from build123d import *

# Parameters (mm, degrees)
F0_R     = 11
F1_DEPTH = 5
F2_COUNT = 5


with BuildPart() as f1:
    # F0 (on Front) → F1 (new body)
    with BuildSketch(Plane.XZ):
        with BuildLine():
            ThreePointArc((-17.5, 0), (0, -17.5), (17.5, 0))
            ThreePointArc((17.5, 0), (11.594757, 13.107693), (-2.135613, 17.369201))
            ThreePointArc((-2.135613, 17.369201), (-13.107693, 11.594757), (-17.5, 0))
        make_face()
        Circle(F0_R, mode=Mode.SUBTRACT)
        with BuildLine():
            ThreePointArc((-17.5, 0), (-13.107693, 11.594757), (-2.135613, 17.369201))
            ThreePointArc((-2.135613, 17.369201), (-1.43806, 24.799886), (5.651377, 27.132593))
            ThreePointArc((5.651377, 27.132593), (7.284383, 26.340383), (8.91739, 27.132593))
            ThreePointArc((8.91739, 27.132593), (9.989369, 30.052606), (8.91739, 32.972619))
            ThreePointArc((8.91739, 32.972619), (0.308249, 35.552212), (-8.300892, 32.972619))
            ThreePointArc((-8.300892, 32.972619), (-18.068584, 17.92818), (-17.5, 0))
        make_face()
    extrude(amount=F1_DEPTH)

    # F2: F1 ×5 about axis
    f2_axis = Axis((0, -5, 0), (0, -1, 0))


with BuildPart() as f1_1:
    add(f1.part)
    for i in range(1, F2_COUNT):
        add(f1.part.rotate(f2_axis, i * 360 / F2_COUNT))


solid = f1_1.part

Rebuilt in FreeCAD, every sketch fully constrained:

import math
import FreeCAD as App
import Part
import Sketcher

doc = App.newDocument("Part")
params = doc.addObject("Spreadsheet::Sheet", "Params")
for row, (alias, value) in enumerate([
    ("sketch1_diameter", "22 mm"),
    ("sketch1_radius", "17.5 mm"),
    ("pad1_length", "5 mm"),
], start=1):
    params.set(f"A{row}", alias)
    params.set(f"B{row}", "=" + value)
    params.setAlias(f"B{row}", alias)

body = doc.addObject("PartDesign::Body", "Body")

sketch1 = doc.addObject("Sketcher::SketchObject", "Sketch")
body.addObject(sketch1)
sketch1.AttachmentSupport = (doc.XZ_Plane, [""])
sketch1.MapMode = "FlatFace"
sketch1.addGeometry([
    Part.ArcOfCircle(Part.Circle(App.Vector(0, 0, 0), App.Vector(0, 0, 1), 17.5), math.radians(180), math.radians(360)),
    Part.ArcOfCircle(Part.Circle(App.Vector(0.000001, 0.000001, 0), App.Vector(0, 0, 1), 17.499999), math.radians(-0.000002), math.radians(97.009568)),
    Part.ArcOfCircle(Part.Circle(App.Vector(3.888225, 20.551799, 0), App.Vector(0, 0, 1), 6.812896), math.radians(75.001352), math.radians(207.849014)),
    Part.ArcOfCircle(Part.Circle(App.Vector(7.284383, 28.419571, 0), App.Vector(0, 0, 1), 2.079188), math.radians(-141.758237), math.radians(-38.241763)),
    Part.ArcOfCircle(Part.Circle(App.Vector(5.476401, 30.052606, 0), App.Vector(0, 0, 1), 4.512968), math.radians(-40.317833), math.radians(40.317833)),
    Part.ArcOfCircle(Part.Circle(App.Vector(0.308249, 19.89633, 0), App.Vector(0, 0, 1), 15.655882), math.radians(56.639973), math.radians(123.360027)),
    Part.ArcOfCircle(Part.Circle(App.Vector(10.811068, 9.870979, 0), App.Vector(0, 0, 1), 29.982542), math.radians(129.600915), math.radians(199.221695)),
    Part.Circle(App.Vector(0, 0, 0), App.Vector(0, 0, 1), 11),
], False)
sketch1.addConstraint([
    Sketcher.Constraint("Tangent", 0, 2, 1, 1),
    Sketcher.Constraint("Coincident", 1, 2, 2, 2),
    Sketcher.Constraint("Coincident", 2, 1, 3, 1),
    Sketcher.Constraint("Coincident", 3, 2, 4, 1),
    Sketcher.Constraint("Coincident", 4, 2, 5, 1),
    Sketcher.Constraint("Coincident", 5, 2, 6, 1),
    Sketcher.Constraint("Coincident", 6, 2, 0, 1),
    Sketcher.Constraint("Coincident", 0, 3, -1, 1),
    Sketcher.Constraint("Coincident", 7, 3, -1, 1),
    Sketcher.Constraint("Equal", 0, 1),
    Sketcher.Constraint("PointOnObject", 0, 2, -1),
    Sketcher.Constraint("PointOnObject", 6, 2, -1),
    Sketcher.Constraint("Horizontal", 2, 1, 3, 2),
    Sketcher.Constraint("Horizontal", 4, 2, 5, 2),
    Sketcher.Constraint("Vertical", 3, 2, 4, 2),
    Sketcher.Constraint("Diameter", 7, 22.0),
    Sketcher.Constraint("Radius", 0, 17.5),
    Sketcher.Constraint("Radius", 4, 4.512968),
    Sketcher.Constraint("Radius", 6, 29.982542),
    Sketcher.Constraint("Radius", 2, 6.812896),
    Sketcher.Constraint("Radius", 3, 2.079188),
    Sketcher.Constraint("Radius", 5, 15.655882),
    Sketcher.Constraint("DistanceY", -1, 1, 2, 3, 20.551799),
    Sketcher.Constraint("DistanceX", -1, 1, 4, 3, 5.476401),
    Sketcher.Constraint("DistanceY", -1, 1, 1, 2, 17.369201),
    Sketcher.Constraint("DistanceY", -1, 1, 3, 3, 28.419571),
    Sketcher.Constraint("DistanceX", -1, 1, 5, 3, 0.308249),
    Sketcher.Constraint("DistanceY", -1, 1, 5, 3, 19.89633),
])
sketch1.setExpression("Constraints[15]", "Params.sketch1_diameter")
sketch1.setExpression("Constraints[16]", "Params.sketch1_radius")
pad1 = doc.addObject("PartDesign::Pad", "Pad")
body.addObject(pad1)
pad1.Profile = sketch1
pad1.setExpression("Length", "Params.pad1_length")
body2 = doc.addObject("PartDesign::Body", "Body001")
doc.recompute()

body2.BaseFeature = body
doc.recompute()

body3 = doc.addObject("PartDesign::Body", "Body002")
body3.BaseFeature = body
body3.Placement = App.Placement(App.Vector(0, 0, 0), App.Rotation(App.Vector(0, -1, 0), 72))
boolean = doc.addObject("PartDesign::Boolean", "Boolean")
body2.addObject(boolean)
boolean.Type = "Fuse"
boolean.addObjects([body3])
doc.recompute()

body4 = doc.addObject("PartDesign::Body", "Body003")
body4.BaseFeature = body
body4.Placement = App.Placement(App.Vector(0, 0, 0), App.Rotation(App.Vector(0, -1, 0), 144))
boolean2 = doc.addObject("PartDesign::Boolean", "Boolean001")
body2.addObject(boolean2)
boolean2.Type = "Fuse"
boolean2.addObjects([body4])
doc.recompute()

body5 = doc.addObject("PartDesign::Body", "Body004")
body5.BaseFeature = body
body5.Placement = App.Placement(App.Vector(0, 0, 0), App.Rotation(App.Vector(0, -1, 0), 216))
boolean3 = doc.addObject("PartDesign::Boolean", "Boolean002")
body2.addObject(boolean3)
boolean3.Type = "Fuse"
boolean3.addObjects([body5])
doc.recompute()

body.Placement = App.Placement(App.Vector(0, 0, 0), App.Rotation(App.Vector(0, -1, 0), 288))
boolean4 = doc.addObject("PartDesign::Boolean", "Boolean003")
body2.addObject(boolean4)
boolean4.Type = "Fuse"
boolean4.addObjects([body])

doc.recompute()
